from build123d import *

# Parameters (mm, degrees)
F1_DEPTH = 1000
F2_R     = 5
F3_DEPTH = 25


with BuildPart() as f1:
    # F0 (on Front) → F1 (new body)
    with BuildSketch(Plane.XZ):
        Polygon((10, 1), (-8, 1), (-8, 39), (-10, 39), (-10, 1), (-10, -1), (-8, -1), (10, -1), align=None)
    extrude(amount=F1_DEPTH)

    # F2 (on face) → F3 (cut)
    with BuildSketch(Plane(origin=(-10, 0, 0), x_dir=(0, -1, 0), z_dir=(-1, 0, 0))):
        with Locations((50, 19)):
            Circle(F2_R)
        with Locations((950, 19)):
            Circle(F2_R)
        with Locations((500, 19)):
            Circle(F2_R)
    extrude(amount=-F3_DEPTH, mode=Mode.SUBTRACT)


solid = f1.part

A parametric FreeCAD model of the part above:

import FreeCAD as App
import Part
import Sketcher

V = App.Vector
Q = App.Units.Quantity


def add_polygon(sketch, points):
    """Adds a closed chain of lines whose ends are joined by coincident constraints."""
    first, n = sketch.GeometryCount, len(points)
    for a, b in zip(points, points[1:] + points[:1]):
        sketch.addGeometry(Part.LineSegment(App.Vector(*a, 0), App.Vector(*b, 0)), False)
    for i in range(n):
        sketch.addConstraint(Sketcher.Constraint("Coincident", first + i, 2, first + (i + 1) % n, 1))

doc = App.newDocument("Part")
body = doc.addObject("PartDesign::Body", "Body")

sketch1 = body.newObject("Sketcher::SketchObject", "Sketch")
sketch1.AttachmentSupport = (doc.getObject("XZ_Plane"), [""])
sketch1.MapMode = "FlatFace"
add_polygon(sketch1, [(10, 1), (-8, 1), (-8, 39), (-10, 39), (-10, -1), (10, -1)])
sketch1.addConstraint(Sketcher.Constraint("Horizontal", 0))
sketch1.addConstraint(Sketcher.Constraint("Vertical", 1))
sketch1.addConstraint(Sketcher.Constraint("Horizontal", 2))
sketch1.addConstraint(Sketcher.Constraint("Vertical", 3))
sketch1.addConstraint(Sketcher.Constraint("Horizontal", 4))
sketch1.addConstraint(Sketcher.Constraint("Vertical", 5))
sketch1.addConstraint(Sketcher.Constraint("Symmetric", 3, 2, 5, 2, -1, 1))
sketch1.addConstraint(Sketcher.Constraint("Equal", 2, 5))
sketch1.addConstraint(Sketcher.Constraint("DistanceX", 0, 2, 0, 1, Q("18 mm")))
sketch1.addConstraint(Sketcher.Constraint("DistanceX", 2, 2, 2, 1, Q("2 mm")))
sketch1.addConstraint(Sketcher.Constraint("DistanceY", 1, 1, 1, 2, Q("38 mm")))
pad1 = body.newObject("PartDesign::Pad", "Pad")
pad1.Profile = sketch1
pad1.Length = 1000

sketch2 = body.newObject("Sketcher::SketchObject", "Sketch001")
sketch2.AttachmentSupport = (doc.getObject("YZ_Plane"), [""])
sketch2.MapMode = "FlatFace"
sketch2.AttachmentOffset = App.Placement(V(0, 0, -10), App.Rotation())
sketch2.addGeometry(Part.Circle(V(-50, 19, 0), V(0, 0, 1), 5), False)
sketch2.addGeometry(Part.Circle(V(-950, 19, 0), V(0, 0, 1), 5), False)
sketch2.addGeometry(Part.Circle(V(-500, 19, 0), V(0, 0, 1), 5), False)
sketch2.addConstraint(Sketcher.Constraint("Equal", 0, 1))
sketch2.addConstraint(Sketcher.Constraint("Equal", 1, 2))
sketch2.addConstraint(Sketcher.Constraint("Horizontal", 0, 3, 1, 3))
sketch2.addConstraint(Sketcher.Constraint("Horizontal", 1, 3, 2, 3))
sketch2.addConstraint(Sketcher.Constraint("Diameter", 0, Q("10 mm")))
sketch2.addConstraint(Sketcher.Constraint("DistanceX", 0, 3, -1, 1, Q("50 mm")))
sketch2.addConstraint(Sketcher.Constraint("DistanceY", -1, 1, 0, 3, Q("19 mm")))
sketch2.addConstraint(Sketcher.Constraint("DistanceX", 1, 3, -1, 1, Q("950 mm")))
sketch2.addConstraint(Sketcher.Constraint("DistanceX", 2, 3, -1, 1, Q("500 mm")))
pocket1 = body.newObject("PartDesign::Pocket", "Pocket")
pocket1.Profile = sketch2
pocket1.Length = 25
pocket1.Reversed = True

doc.recompute()
